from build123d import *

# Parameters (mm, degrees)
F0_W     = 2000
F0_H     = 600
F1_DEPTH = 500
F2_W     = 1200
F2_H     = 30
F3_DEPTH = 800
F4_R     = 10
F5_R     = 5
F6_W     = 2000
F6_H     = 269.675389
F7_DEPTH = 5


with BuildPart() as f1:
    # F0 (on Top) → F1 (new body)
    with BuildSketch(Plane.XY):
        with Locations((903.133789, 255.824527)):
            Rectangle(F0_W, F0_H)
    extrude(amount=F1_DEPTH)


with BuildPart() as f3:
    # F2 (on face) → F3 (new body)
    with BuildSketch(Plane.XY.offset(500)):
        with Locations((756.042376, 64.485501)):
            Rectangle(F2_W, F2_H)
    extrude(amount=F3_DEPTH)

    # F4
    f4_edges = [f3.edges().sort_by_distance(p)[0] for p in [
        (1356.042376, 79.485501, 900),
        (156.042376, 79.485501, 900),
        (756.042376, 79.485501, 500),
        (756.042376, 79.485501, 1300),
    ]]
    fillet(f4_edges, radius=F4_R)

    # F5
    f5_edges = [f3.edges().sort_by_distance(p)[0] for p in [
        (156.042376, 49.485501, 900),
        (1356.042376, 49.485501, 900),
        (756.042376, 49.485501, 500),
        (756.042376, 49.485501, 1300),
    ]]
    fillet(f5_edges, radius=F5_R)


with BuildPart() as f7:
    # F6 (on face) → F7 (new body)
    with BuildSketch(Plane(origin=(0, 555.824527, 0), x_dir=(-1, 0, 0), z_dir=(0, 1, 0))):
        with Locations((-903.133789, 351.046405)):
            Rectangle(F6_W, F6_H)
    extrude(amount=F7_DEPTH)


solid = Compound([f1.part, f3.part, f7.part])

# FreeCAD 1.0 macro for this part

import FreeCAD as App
import Part
import Sketcher
from FreeCAD import Vector


def edges_at(feature, points):
    """Names of the edges that pass closest to the given points."""
    edges = feature.Shape.Edges
    near = lambda p: min(range(len(edges)), key=lambda i: edges[i].distToShape(Part.Vertex(*p))[0])
    return sorted({f"Edge{near(p) + 1}" for p in points})

doc = App.newDocument("Part")
body = doc.addObject("PartDesign::Body", "Body")

# Sketch on XY plane
sketch1 = body.newObject("Sketcher::SketchObject", "Sketch")
sketch1.AttachmentSupport = (doc.getObject("XY_Plane"), [""])
sketch1.MapMode = "FlatFace"
sketch1.addGeometry([
    Part.LineSegment(Vector(-97, 556, 0), Vector(-97, -44, 0)),
    Part.LineSegment(Vector(-97, -44, 0), Vector(1903, -44, 0)),
    Part.LineSegment(Vector(1903, -44, 0), Vector(1903, 556, 0)),
    Part.LineSegment(Vector(1903, 556, 0), Vector(-97, 556, 0)),
], False)
sketch1.addConstraint([
    Sketcher.Constraint("Coincident", 0, 2, 1, 1),
    Sketcher.Constraint("Coincident", 1, 2, 2, 1),
    Sketcher.Constraint("Coincident", 2, 2, 3, 1),
    Sketcher.Constraint("Coincident", 3, 2, 0, 1),
    Sketcher.Constraint("Vertical", 0),
    Sketcher.Constraint("Horizontal", 1),
    Sketcher.Constraint("Vertical", 2),
    Sketcher.Constraint("Horizontal", 3),
    Sketcher.Constraint("DistanceX", 1, 1, 1, 2, 2000.0),
    Sketcher.Constraint("DistanceY", 0, 2, 0, 1, 600.0),
    Sketcher.Constraint("DistanceX", 0, 2, -1, 1, 96.866211),
    Sketcher.Constraint("DistanceY", 0, 2, -1, 1, 44.175473),
])
pad1 = body.newObject("PartDesign::Pad", "Pad")
pad1.Profile = sketch1
pad1.Length = 500
body2 = doc.addObject("PartDesign::Body", "Body001")

# Sketch on XY plane
sketch2 = body2.newObject("Sketcher::SketchObject", "Sketch001")
sketch2.AttachmentSupport = (doc.getObject("XY_Plane001"), [""])
sketch2.MapMode = "FlatFace"
sketch2.AttachmentOffset = App.Placement(Vector(0, 0, 500), App.Rotation())
sketch2.addGeometry([
    Part.LineSegment(Vector(156, 79, 0), Vector(156, 49, 0)),
    Part.LineSegment(Vector(156, 49, 0), Vector(1356, 49, 0)),
    Part.LineSegment(Vector(1356, 49, 0), Vector(1356, 79, 0)),
    Part.LineSegment(Vector(1356, 79, 0), Vector(156, 79, 0)),
], False)
sketch2.addConstraint([
    Sketcher.Constraint("Coincident", 0, 2, 1, 1),
    Sketcher.Constraint("Coincident", 1, 2, 2, 1),
    Sketcher.Constraint("Coincident", 2, 2, 3, 1),
    Sketcher.Constraint("Coincident", 3, 2, 0, 1),
    Sketcher.Constraint("Vertical", 0),
    Sketcher.Constraint("Horizontal", 1),
    Sketcher.Constraint("Vertical", 2),
    Sketcher.Constraint("Horizontal", 3),
    Sketcher.Constraint("DistanceX", 1, 1, 1, 2, 1200.0),
    Sketcher.Constraint("DistanceY", 0, 2, 0, 1, 30.0),
    Sketcher.Constraint("DistanceY", -1, 1, 0, 2, 49.485501),
    Sketcher.Constraint("DistanceX", -1, 1, 0, 2, 156.042376),
])
pad2 = body2.newObject("PartDesign::Pad", "Pad001")
pad2.Profile = sketch2
pad2.Length = 800
doc.recompute()

fillet = body2.newObject("PartDesign::Fillet", "Fillet")
fillet.Base = (pad2, edges_at(pad2, [
    (1356.042, 79.486, 900),
    (156.042, 79.486, 900),
    (756.042, 79.486, 500),
    (756.042, 79.486, 1300),
]))
fillet.Radius = 10
doc.recompute()

fillet2 = body2.newObject("PartDesign::Fillet", "Fillet001")
fillet2.Base = (fillet, edges_at(fillet, [
    (156.042, 49.486, 900),
    (1356.042, 49.486, 900),
    (756.042, 49.486, 500),
    (756.042, 49.486, 1300),
]))
fillet2.Radius = 5
body3 = doc.addObject("PartDesign::Body", "Body002")

# Sketch on XZ plane
sketch3 = body3.newObject("Sketcher::SketchObject", "Sketch002")
sketch3.AttachmentSupport = (doc.getObject("XZ_Plane002"), [""])
sketch3.MapMode = "FlatFace"
sketch3.AttachmentOffset = App.Placement(Vector(0, 0, -555.824527), App.Rotation())
sketch3.addGeometry([
    Part.LineSegment(Vector(1903, 486, 0), Vector(1903, 216, 0)),
    Part.LineSegment(Vector(1903, 216, 0), Vector(-97, 216, 0)),
    Part.LineSegment(Vector(-97, 216, 0), Vector(-97, 486, 0)),
    Part.LineSegment(Vector(-97, 486, 0), Vector(1903, 486, 0)),
], False)
sketch3.addConstraint([
    Sketcher.Constraint("Coincident", 0, 2, 1, 1),
    Sketcher.Constraint("Coincident", 1, 2, 2, 1),
    Sketcher.Constraint("Coincident", 2, 2, 3, 1),
    Sketcher.Constraint("Coincident", 3, 2, 0, 1),
    Sketcher.Constraint("Vertical", 0),
    Sketcher.Constraint("Horizontal", 1),
    Sketcher.Constraint("Vertical", 2),
    Sketcher.Constraint("Horizontal", 3),
    Sketcher.Constraint("DistanceX", 1, 2, 1, 1, 2000.0),
    Sketcher.Constraint("DistanceY", 0, 2, 0, 1, 269.675389),
    Sketcher.Constraint("DistanceY", -1, 1, 2, 2, 485.884099),
    Sketcher.Constraint("DistanceX", -1, 1, 0, 2, 1903.133789),
])
pad3 = body3.newObject("PartDesign::Pad", "Pad002")
pad3.Profile = sketch3
pad3.Length = 5
pad3.Reversed = True

doc.recompute()
